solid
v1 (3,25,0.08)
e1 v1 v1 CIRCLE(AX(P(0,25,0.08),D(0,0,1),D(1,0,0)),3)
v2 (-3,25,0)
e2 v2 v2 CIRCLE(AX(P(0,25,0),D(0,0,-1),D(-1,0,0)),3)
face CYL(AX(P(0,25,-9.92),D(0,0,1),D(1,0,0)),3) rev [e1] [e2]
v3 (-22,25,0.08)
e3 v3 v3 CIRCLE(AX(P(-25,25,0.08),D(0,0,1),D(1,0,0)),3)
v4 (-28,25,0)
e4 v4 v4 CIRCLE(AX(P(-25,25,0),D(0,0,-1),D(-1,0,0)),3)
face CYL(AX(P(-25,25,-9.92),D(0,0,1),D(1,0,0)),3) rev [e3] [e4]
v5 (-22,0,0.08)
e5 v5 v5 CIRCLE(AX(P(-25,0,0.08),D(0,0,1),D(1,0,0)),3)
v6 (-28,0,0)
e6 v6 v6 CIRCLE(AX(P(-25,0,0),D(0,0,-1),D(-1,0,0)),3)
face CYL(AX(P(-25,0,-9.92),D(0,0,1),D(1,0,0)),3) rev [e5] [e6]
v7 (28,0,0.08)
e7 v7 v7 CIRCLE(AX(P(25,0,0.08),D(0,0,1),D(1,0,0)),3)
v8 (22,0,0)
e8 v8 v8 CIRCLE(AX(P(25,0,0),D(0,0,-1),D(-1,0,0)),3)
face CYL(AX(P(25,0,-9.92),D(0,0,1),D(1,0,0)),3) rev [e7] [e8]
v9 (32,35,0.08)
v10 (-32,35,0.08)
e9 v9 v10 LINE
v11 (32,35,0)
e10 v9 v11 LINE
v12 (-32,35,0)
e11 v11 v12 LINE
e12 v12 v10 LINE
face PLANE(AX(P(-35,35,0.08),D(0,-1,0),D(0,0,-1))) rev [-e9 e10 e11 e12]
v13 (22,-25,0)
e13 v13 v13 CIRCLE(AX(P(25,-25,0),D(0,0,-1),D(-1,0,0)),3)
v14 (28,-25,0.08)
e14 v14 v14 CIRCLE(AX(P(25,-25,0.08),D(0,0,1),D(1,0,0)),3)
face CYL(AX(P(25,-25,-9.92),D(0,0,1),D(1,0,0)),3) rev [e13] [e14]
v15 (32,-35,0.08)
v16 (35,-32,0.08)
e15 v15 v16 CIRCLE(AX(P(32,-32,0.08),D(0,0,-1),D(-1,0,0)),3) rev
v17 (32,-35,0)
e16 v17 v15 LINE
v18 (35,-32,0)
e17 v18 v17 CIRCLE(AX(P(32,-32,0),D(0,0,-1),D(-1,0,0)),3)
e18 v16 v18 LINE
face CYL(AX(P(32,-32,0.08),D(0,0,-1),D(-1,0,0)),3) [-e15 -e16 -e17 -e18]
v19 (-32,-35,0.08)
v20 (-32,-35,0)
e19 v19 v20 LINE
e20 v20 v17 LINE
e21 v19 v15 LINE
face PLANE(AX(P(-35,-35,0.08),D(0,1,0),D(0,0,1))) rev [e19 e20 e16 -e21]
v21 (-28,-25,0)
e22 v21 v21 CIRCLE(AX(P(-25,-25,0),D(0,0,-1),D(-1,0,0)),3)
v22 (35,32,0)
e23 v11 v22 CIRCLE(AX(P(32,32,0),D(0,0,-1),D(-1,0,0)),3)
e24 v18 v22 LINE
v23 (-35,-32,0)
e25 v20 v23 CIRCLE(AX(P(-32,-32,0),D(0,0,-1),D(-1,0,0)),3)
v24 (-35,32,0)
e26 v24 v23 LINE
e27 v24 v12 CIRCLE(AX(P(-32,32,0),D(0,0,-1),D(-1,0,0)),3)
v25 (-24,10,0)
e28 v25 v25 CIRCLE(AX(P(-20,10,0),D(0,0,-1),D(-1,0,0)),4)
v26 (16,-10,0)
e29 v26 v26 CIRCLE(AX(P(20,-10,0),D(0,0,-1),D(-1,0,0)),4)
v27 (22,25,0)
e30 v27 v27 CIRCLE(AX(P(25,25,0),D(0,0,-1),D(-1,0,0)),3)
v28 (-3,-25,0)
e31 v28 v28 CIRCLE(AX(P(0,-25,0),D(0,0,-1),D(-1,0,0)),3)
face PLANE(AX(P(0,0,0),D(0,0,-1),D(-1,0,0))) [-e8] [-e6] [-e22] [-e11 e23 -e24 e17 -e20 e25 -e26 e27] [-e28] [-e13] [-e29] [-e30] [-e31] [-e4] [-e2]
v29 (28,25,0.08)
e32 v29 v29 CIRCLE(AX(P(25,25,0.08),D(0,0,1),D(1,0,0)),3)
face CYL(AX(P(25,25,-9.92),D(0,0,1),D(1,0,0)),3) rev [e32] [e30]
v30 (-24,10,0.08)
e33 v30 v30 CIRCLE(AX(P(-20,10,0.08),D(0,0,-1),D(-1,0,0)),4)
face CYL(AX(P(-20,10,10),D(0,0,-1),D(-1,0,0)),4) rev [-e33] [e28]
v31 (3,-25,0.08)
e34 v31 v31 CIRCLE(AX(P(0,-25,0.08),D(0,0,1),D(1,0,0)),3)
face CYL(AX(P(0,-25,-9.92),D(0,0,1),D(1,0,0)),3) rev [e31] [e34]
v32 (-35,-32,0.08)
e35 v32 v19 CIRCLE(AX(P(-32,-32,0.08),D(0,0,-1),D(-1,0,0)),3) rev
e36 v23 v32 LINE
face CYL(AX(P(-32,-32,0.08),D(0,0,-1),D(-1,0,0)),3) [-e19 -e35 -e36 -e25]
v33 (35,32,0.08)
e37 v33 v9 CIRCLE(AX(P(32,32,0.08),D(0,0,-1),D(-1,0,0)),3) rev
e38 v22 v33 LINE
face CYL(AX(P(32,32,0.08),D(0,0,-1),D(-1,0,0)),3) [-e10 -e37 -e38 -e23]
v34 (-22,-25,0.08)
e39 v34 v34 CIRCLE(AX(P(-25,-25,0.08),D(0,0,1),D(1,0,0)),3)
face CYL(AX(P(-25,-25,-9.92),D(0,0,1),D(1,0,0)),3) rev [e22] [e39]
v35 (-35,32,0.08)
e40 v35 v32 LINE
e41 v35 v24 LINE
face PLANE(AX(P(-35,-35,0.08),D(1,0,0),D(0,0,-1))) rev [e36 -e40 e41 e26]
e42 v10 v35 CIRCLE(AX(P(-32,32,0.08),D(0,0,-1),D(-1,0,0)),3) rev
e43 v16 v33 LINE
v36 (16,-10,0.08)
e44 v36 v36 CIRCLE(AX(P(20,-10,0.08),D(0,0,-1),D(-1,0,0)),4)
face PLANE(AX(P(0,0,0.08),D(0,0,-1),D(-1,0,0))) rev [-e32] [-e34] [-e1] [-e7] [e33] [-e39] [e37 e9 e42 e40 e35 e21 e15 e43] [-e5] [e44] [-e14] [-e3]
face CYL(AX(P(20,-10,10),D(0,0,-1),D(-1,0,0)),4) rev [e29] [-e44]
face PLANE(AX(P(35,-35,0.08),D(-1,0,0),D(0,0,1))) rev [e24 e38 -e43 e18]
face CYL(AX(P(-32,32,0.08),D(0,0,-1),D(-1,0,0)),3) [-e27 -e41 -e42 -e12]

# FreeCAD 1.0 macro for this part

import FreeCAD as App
import Part
import Sketcher
from FreeCAD import Vector


def edges_at(feature, points):
    """Names of the edges that pass closest to the given points."""
    edges = feature.Shape.Edges
    near = lambda p: min(range(len(edges)), key=lambda i: edges[i].distToShape(Part.Vertex(*p))[0])
    return sorted({f"Edge{near(p) + 1}" for p in points})

doc = App.newDocument("Part")
body = doc.addObject("PartDesign::Body", "Body")

# Sketch on XY plane
sketch1 = body.newObject("Sketcher::SketchObject", "Sketch")
sketch1.AttachmentSupport = (doc.getObject("XY_Plane"), [""])
sketch1.MapMode = "FlatFace"
sketch1.addGeometry(Part.LineSegment(Vector(-35, 35, 0), Vector(-35, -35, 0)), False)
sketch1.addGeometry(Part.LineSegment(Vector(-35, -35, 0), Vector(35, -35, 0)), False)
sketch1.addGeometry(Part.LineSegment(Vector(35, -35, 0), Vector(35, 35, 0)), False)
sketch1.addGeometry(Part.LineSegment(Vector(35, 35, 0), Vector(-35, 35, 0)), False)
sketch1.addConstraint(Sketcher.Constraint("Coincident", 0, 2, 1, 1))
sketch1.addConstraint(Sketcher.Constraint("Coincident", 1, 2, 2, 1))
sketch1.addConstraint(Sketcher.Constraint("Coincident", 2, 2, 3, 1))
sketch1.addConstraint(Sketcher.Constraint("Coincident", 3, 2, 0, 1))
sketch1.addConstraint(Sketcher.Constraint("Vertical", 0))
sketch1.addConstraint(Sketcher.Constraint("Horizontal", 1))
sketch1.addConstraint(Sketcher.Constraint("Vertical", 2))
sketch1.addConstraint(Sketcher.Constraint("Horizontal", 3))
sketch1.addConstraint(Sketcher.Constraint("Symmetric", 0, 2, 2, 2, -1, 1))
sketch1.addConstraint(Sketcher.Constraint("Equal", 3, 0))
sketch1.addConstraint(Sketcher.Constraint("DistanceX", 1, 1, 1, 2, 70.0))
pad1 = body.newObject("PartDesign::Pad", "Pad")
pad1.Profile = sketch1
pad1.Length = 0.08

# Sketch on XY plane
sketch2 = body.newObject("Sketcher::SketchObject", "Sketch001")
sketch2.AttachmentSupport = (doc.getObject("XY_Plane"), [""])
sketch2.MapMode = "FlatFace"
sketch2.AttachmentOffset = App.Placement(Vector(0, 0, 0.08), App.Rotation())
sketch2.addGeometry(Part.Circle(Vector(0, 25, 0), Vector(0, 0, 1), 3), False)
sketch2.addGeometry(Part.Circle(Vector(25, 25, 0), Vector(0, 0, 1), 3), False)
sketch2.addGeometry(Part.Circle(Vector(25, 0, 0), Vector(0, 0, 1), 3), False)
sketch2.addGeometry(Part.Circle(Vector(-25, 0, 0), Vector(0, 0, 1), 3), False)
sketch2.addGeometry(Part.Circle(Vector(-25, 25, 0), Vector(0, 0, 1), 3), False)
sketch2.addGeometry(Part.Circle(Vector(-25, -25, 0), Vector(0, 0, 1), 3), False)
sketch2.addGeometry(Part.Circle(Vector(0, -25, 0), Vector(0, 0, 1), 3), False)
sketch2.addGeometry(Part.Circle(Vector(25, -25, 0), Vector(0, 0, 1), 3), False)
sketch2.addConstraint(Sketcher.Constraint("Equal", 0, 1))
sketch2.addConstraint(Sketcher.Constraint("Equal", 1, 2))
sketch2.addConstraint(Sketcher.Constraint("Equal", 2, 3))
sketch2.addConstraint(Sketcher.Constraint("Equal", 3, 4))
sketch2.addConstraint(Sketcher.Constraint("Equal", 4, 5))
sketch2.addConstraint(Sketcher.Constraint("Equal", 5, 6))
sketch2.addConstraint(Sketcher.Constraint("Equal", 6, 7))
sketch2.addConstraint(Sketcher.Constraint("Symmetric", 2, 3, 3, 3, -1, 1))
sketch2.addConstraint(Sketcher.Constraint("Symmetric", 1, 3, 5, 3, -1, 1))
sketch2.addConstraint(Sketcher.Constraint("Symmetric", 0, 3, 6, 3, -1, 1))
sketch2.addConstraint(Sketcher.Constraint("Symmetric", 4, 3, 7, 3, -1, 1))
sketch2.addConstraint(Sketcher.Constraint("Symmetric", 1, 3, 4, 3, -2))
sketch2.addConstraint(Sketcher.Constraint("PointOnObject", 0, 3, -2))
sketch2.addConstraint(Sketcher.Constraint("PointOnObject", 2, 3, -1))
sketch2.addConstraint(Sketcher.Constraint("Horizontal", 0, 3, 1, 3))
sketch2.addConstraint(Sketcher.Constraint("Vertical", 1, 3, 2, 3))
sketch2.addConstraint(Sketcher.Constraint("Diameter", 0, 6.0))
sketch2.addConstraint(Sketcher.Constraint("DistanceY", -1, 1, 0, 3, 25.0))
sketch2.addConstraint(Sketcher.Constraint("DistanceX", -1, 1, 1, 3, 25.0))
pocket1 = body.newObject("PartDesign::Pocket", "Pocket")
pocket1.Profile = sketch2
pocket1.Length = 10
doc.recompute()

fillet = body.newObject("PartDesign::Fillet", "Fillet")
fillet.Base = (pocket1, edges_at(pocket1, [
    (35, -35, 0.04),
    (-35, -35, 0.04),
    (-35, 35, 0.04),
    (35, 35, 0.04),
]))
fillet.Radius = 3

# Sketch on XY plane
sketch3 = body.newObject("Sketcher::SketchObject", "Sketch002")
sketch3.AttachmentSupport = (doc.getObject("XY_Plane"), [""])
sketch3.MapMode = "FlatFace"
sketch3.addGeometry(Part.Circle(Vector(-20, 10, 0), Vector(0, 0, 1), 4), False)
sketch3.addGeometry(Part.Circle(Vector(20, -10, 0), Vector(0, 0, 1), 4), False)
sketch3.addConstraint(Sketcher.Constraint("Equal", 0, 1))
sketch3.addConstraint(Sketcher.Constraint("Symmetric", 0, 3, 1, 3, -1, 1))
sketch3.addConstraint(Sketcher.Constraint("Diameter", 0, 8.0))
sketch3.addConstraint(Sketcher.Constraint("DistanceX", 0, 3, -1, 1, 20.0))
sketch3.addConstraint(Sketcher.Constraint("DistanceY", -1, 1, 0, 3, 10.0))
pocket2 = body.newObject("PartDesign::Pocket", "Pocket001")
pocket2.Profile = sketch3
pocket2.Length = 10
pocket2.Reversed = True

doc.recompute()
